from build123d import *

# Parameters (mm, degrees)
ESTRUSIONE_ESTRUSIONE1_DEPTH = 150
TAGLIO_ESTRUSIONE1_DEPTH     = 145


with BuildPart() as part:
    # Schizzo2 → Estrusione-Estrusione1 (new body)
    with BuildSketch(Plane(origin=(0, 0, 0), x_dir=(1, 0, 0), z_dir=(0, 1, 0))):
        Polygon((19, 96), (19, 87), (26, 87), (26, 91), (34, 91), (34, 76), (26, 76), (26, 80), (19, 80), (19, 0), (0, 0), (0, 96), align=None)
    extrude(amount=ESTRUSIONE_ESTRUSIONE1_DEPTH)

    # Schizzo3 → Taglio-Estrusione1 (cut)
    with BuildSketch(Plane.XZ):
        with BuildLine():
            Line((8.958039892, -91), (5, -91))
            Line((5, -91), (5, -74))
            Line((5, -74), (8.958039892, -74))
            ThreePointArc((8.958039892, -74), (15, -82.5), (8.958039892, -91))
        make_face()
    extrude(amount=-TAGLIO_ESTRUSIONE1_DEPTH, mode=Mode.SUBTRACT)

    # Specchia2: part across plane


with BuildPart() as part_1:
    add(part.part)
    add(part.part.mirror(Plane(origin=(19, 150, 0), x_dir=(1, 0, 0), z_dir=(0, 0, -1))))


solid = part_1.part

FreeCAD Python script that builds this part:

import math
import FreeCAD as App
import Part
import Sketcher
Q = App.Units.Quantity

doc = App.newDocument("Part")
params = doc.addObject("Spreadsheet::Sheet", "Params")
for row, (alias, value) in enumerate([
    ("sketch1_width", "19 mm"),
    ("sketch1_width2", "7 mm"),
    ("sketch1_width3", "8 mm"),
    ("sketch1_height", "9 mm"),
    ("sketch1_height2", "96 mm"),
    ("pad1_length", "150 mm"),
    ("sketch2_radius", "9 mm"),
    ("sketch2_height", "17 mm"),
    ("pocket1_length", "145 mm"),
], start=1):
    params.set(f"A{row}", alias)
    params.set(f"B{row}", "=" + value)
    params.setAlias(f"B{row}", alias)

body = doc.addObject("PartDesign::Body", "Body")

sketch1 = doc.addObject("Sketcher::SketchObject", "Sketch")
body.addObject(sketch1)
sketch1.AttachmentSupport = (doc.XZ_Plane, [""])
sketch1.MapMode = "FlatFace"
sketch1.addGeometry(Part.LineSegment(App.Vector(19, -87, 0), App.Vector(19, -96, 0)), False)
sketch1.addGeometry(Part.LineSegment(App.Vector(19, -96, 0), App.Vector(0, -96, 0)), False)
sketch1.addGeometry(Part.LineSegment(App.Vector(0, -96, 0), App.Vector(0, 0, 0)), False)
sketch1.addGeometry(Part.LineSegment(App.Vector(0, 0, 0), App.Vector(19, 0, 0)), False)
sketch1.addGeometry(Part.LineSegment(App.Vector(19, 0, 0), App.Vector(19, -80, 0)), False)
sketch1.addGeometry(Part.LineSegment(App.Vector(19, -80, 0), App.Vector(26, -80, 0)), False)
sketch1.addGeometry(Part.LineSegment(App.Vector(26, -80, 0), App.Vector(26, -76, 0)), False)
sketch1.addGeometry(Part.LineSegment(App.Vector(26, -76, 0), App.Vector(34, -76, 0)), False)
sketch1.addGeometry(Part.LineSegment(App.Vector(34, -76, 0), App.Vector(34, -91, 0)), False)
sketch1.addGeometry(Part.LineSegment(App.Vector(34, -91, 0), App.Vector(26, -91, 0)), False)
sketch1.addGeometry(Part.LineSegment(App.Vector(26, -91, 0), App.Vector(26, -87, 0)), False)
sketch1.addGeometry(Part.LineSegment(App.Vector(26, -87, 0), App.Vector(19, -87, 0)), False)
sketch1.addConstraint(Sketcher.Constraint("Coincident", 0, 2, 1, 1))
sketch1.addConstraint(Sketcher.Constraint("Coincident", 1, 2, 2, 1))
sketch1.addConstraint(Sketcher.Constraint("Coincident", 2, 2, 3, 1))
sketch1.addConstraint(Sketcher.Constraint("Coincident", 3, 2, 4, 1))
sketch1.addConstraint(Sketcher.Constraint("Coincident", 4, 2, 5, 1))
sketch1.addConstraint(Sketcher.Constraint("Coincident", 5, 2, 6, 1))
sketch1.addConstraint(Sketcher.Constraint("Coincident", 6, 2, 7, 1))
sketch1.addConstraint(Sketcher.Constraint("Coincident", 7, 2, 8, 1))
sketch1.addConstraint(Sketcher.Constraint("Coincident", 8, 2, 9, 1))
sketch1.addConstraint(Sketcher.Constraint("Coincident", 9, 2, 10, 1))
sketch1.addConstraint(Sketcher.Constraint("Coincident", 10, 2, 11, 1))
sketch1.addConstraint(Sketcher.Constraint("Coincident", 11, 2, 0, 1))
sketch1.addConstraint(Sketcher.Constraint("Vertical", 0))
sketch1.addConstraint(Sketcher.Constraint("Horizontal", 1))
sketch1.addConstraint(Sketcher.Constraint("Vertical", 2))
sketch1.addConstraint(Sketcher.Constraint("Horizontal", 3))
sketch1.addConstraint(Sketcher.Constraint("Vertical", 4))
sketch1.addConstraint(Sketcher.Constraint("Horizontal", 5))
sketch1.addConstraint(Sketcher.Constraint("Vertical", 6))
sketch1.addConstraint(Sketcher.Constraint("Horizontal", 7))
sketch1.addConstraint(Sketcher.Constraint("Vertical", 8))
sketch1.addConstraint(Sketcher.Constraint("Horizontal", 9))
sketch1.addConstraint(Sketcher.Constraint("Vertical", 10))
sketch1.addConstraint(Sketcher.Constraint("Horizontal", 11))
sketch1.addConstraint(Sketcher.Constraint("Coincident", 2, 2, -1, 1))
sketch1.addConstraint(Sketcher.Constraint("Vertical", 0, 2, 3, 2))
sketch1.addConstraint(Sketcher.Constraint("Vertical", 6, 2, 9, 2))
sketch1.addConstraint(Sketcher.Constraint("Equal", 6, 10))
sketch1.addConstraint(Sketcher.Constraint("DistanceX", 1, 2, 1, 1, Q("19 mm")))
sketch1.addConstraint(Sketcher.Constraint("DistanceX", 5, 1, 5, 2, Q("7 mm")))
sketch1.addConstraint(Sketcher.Constraint("DistanceX", 7, 1, 7, 2, Q("8 mm")))
sketch1.addConstraint(Sketcher.Constraint("DistanceY", 0, 2, 0, 1, Q("9 mm")))
sketch1.addConstraint(Sketcher.Constraint("DistanceY", 2, 1, 2, 2, Q("96 mm")))
sketch1.addConstraint(Sketcher.Constraint("DistanceY", 4, 2, 4, 1, Q("80 mm")))
sketch1.addConstraint(Sketcher.Constraint("DistanceY", 6, 1, 6, 2, Q("4 mm")))
sketch1.setExpression("Constraints[28]", "Params.sketch1_width")
sketch1.setExpression("Constraints[29]", "Params.sketch1_width2")
sketch1.setExpression("Constraints[30]", "Params.sketch1_width3")
sketch1.setExpression("Constraints[31]", "Params.sketch1_height")
sketch1.setExpression("Constraints[32]", "Params.sketch1_height2")
pad1 = doc.addObject("PartDesign::Pad", "Pad")
body.addObject(pad1)
pad1.Profile = sketch1
pad1.setExpression("Length", "Params.pad1_length")
pad1.Reversed = True

sketch2 = doc.addObject("Sketcher::SketchObject", "Sketch001")
body.addObject(sketch2)
sketch2.AttachmentSupport = (doc.XZ_Plane, [""])
sketch2.MapMode = "FlatFace"
sketch2.addGeometry(Part.LineSegment(App.Vector(5, -91, 0), App.Vector(9, -91, 0)), False)
sketch2.addGeometry(Part.ArcOfCircle(Part.Circle(App.Vector(6, -82.5, 0), App.Vector(0, 0, 1), 9), math.radians(-71), math.radians(71)), False)
sketch2.addGeometry(Part.LineSegment(App.Vector(9, -74, 0), App.Vector(5, -74, 0)), False)
sketch2.addGeometry(Part.LineSegment(App.Vector(5, -74, 0), App.Vector(5, -91, 0)), False)
sketch2.addConstraint(Sketcher.Constraint("Coincident", 0, 2, 1, 1))
sketch2.addConstraint(Sketcher.Constraint("Coincident", 1, 2, 2, 1))
sketch2.addConstraint(Sketcher.Constraint("Coincident", 2, 2, 3, 1))
sketch2.addConstraint(Sketcher.Constraint("Coincident", 3, 2, 0, 1))
sketch2.addConstraint(Sketcher.Constraint("Horizontal", 0))
sketch2.addConstraint(Sketcher.Constraint("Horizontal", 2))
sketch2.addConstraint(Sketcher.Constraint("Vertical", 3))
sketch2.addConstraint(Sketcher.Constraint("Vertical", 0, 2, 1, 2))
sketch2.addConstraint(Sketcher.Constraint("Radius", 1, Q("9 mm")))
sketch2.addConstraint(Sketcher.Constraint("DistanceY", 3, 2, 3, 1, Q("17 mm")))
sketch2.addConstraint(Sketcher.Constraint("DistanceX", -1, 1, 1, 3, Q("6 mm")))
sketch2.addConstraint(Sketcher.Constraint("DistanceY", 0, 2, -1, 1, Q("91 mm")))
sketch2.addConstraint(Sketcher.Constraint("DistanceX", -1, 1, 2, 2, Q("5 mm")))
sketch2.setExpression("Constraints[8]", "Params.sketch2_radius")
sketch2.setExpression("Constraints[9]", "Params.sketch2_height")
pocket1 = doc.addObject("PartDesign::Pocket", "Pocket")
body.addObject(pocket1)
pocket1.Profile = sketch2
pocket1.setExpression("Length", "Params.pocket1_length")
body2 = doc.addObject("PartDesign::Body", "Body001")
doc.recompute()

body2.BaseFeature = body
doc.recompute()

mirroring = doc.addObject("Part::Mirroring", "Mirroring")
mirroring.Source = body
mirroring.Base = App.Vector(19, 150, 0)
mirroring.Normal = App.Vector(0, 0, -1)
body3 = doc.addObject("PartDesign::Body", "Body002")
body3.BaseFeature = mirroring
boolean = doc.addObject("PartDesign::Boolean", "Boolean")
body2.addObject(boolean)
boolean.Type = "Fuse"
boolean.addObjects([body3])
doc.recompute()
mirroring.Visibility = False

doc.recompute()
